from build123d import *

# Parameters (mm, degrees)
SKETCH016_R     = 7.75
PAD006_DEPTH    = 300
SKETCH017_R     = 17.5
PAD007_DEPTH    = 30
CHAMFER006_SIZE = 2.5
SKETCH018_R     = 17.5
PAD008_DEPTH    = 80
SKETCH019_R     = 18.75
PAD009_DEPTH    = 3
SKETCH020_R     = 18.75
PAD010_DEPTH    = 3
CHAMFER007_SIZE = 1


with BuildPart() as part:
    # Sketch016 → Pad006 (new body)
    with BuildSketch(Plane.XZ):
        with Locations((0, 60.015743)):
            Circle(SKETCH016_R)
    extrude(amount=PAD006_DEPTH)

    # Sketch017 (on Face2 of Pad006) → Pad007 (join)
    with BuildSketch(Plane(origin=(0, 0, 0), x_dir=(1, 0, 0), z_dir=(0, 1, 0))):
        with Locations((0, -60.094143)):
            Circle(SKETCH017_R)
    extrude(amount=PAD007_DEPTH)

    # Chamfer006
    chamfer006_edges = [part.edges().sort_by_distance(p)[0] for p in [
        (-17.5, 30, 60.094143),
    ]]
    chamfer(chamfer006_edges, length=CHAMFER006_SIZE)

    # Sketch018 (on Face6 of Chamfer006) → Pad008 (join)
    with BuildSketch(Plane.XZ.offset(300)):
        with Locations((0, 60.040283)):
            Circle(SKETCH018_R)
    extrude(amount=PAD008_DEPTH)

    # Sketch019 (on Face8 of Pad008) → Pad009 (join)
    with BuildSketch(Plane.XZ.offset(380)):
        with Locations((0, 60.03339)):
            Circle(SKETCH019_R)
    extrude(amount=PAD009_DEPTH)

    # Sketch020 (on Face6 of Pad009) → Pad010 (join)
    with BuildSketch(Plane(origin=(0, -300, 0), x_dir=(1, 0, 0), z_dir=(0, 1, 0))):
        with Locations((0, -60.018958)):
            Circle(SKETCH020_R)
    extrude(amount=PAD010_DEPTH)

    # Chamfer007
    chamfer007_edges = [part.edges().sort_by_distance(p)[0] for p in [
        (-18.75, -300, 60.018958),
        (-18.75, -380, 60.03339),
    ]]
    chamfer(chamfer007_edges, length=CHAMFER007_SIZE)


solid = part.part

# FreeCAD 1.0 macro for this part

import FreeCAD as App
import Part
import Sketcher


def edges_at(feature, points):
    """Names of the edges that pass closest to the given points."""
    edges = feature.Shape.Edges
    near = lambda p: min(range(len(edges)), key=lambda i: edges[i].distToShape(Part.Vertex(*p))[0])
    return sorted({f"Edge{near(p) + 1}" for p in points})

doc = App.newDocument("Part")
body = doc.addObject("PartDesign::Body", "Body")

# Sketch on XZ plane
sketch1 = body.newObject("Sketcher::SketchObject", "Sketch")
sketch1.AttachmentSupport = (doc.getObject("XZ_Plane"), [""])
sketch1.MapMode = "FlatFace"
sketch1.addGeometry(Part.Circle(App.Vector(0, 60, 0), App.Vector(0, 0, 1), 8), False)
sketch1.addConstraint(Sketcher.Constraint("PointOnObject", 0, 3, -2))
sketch1.addConstraint(Sketcher.Constraint("Diameter", 0, 15.5))
sketch1.addConstraint(Sketcher.Constraint("DistanceY", -1, 1, 0, 3, 60.015743))
pad1 = body.newObject("PartDesign::Pad", "Pad")
pad1.Profile = sketch1
pad1.Length = 300

# Sketch on XZ plane
sketch2 = body.newObject("Sketcher::SketchObject", "Sketch001")
sketch2.AttachmentSupport = (doc.getObject("XZ_Plane"), [""])
sketch2.MapMode = "FlatFace"
sketch2.addGeometry(Part.Circle(App.Vector(0, 60, 0), App.Vector(0, 0, 1), 18), False)
sketch2.addConstraint(Sketcher.Constraint("PointOnObject", 0, 3, -2))
sketch2.addConstraint(Sketcher.Constraint("Diameter", 0, 35.0))
sketch2.addConstraint(Sketcher.Constraint("DistanceY", -1, 1, 0, 3, 60.094143))
pad2 = body.newObject("PartDesign::Pad", "Pad001")
pad2.Profile = sketch2
pad2.Length = 30
pad2.Reversed = True
doc.recompute()

chamfer = body.newObject("PartDesign::Chamfer", "Chamfer")
chamfer.Base = (pad2, edges_at(pad2, [(-17.5, 30, 60.094)]))
chamfer.Size = 2.5

# Sketch on XZ plane
sketch3 = body.newObject("Sketcher::SketchObject", "Sketch002")
sketch3.AttachmentSupport = (doc.getObject("XZ_Plane"), [""])
sketch3.MapMode = "FlatFace"
sketch3.AttachmentOffset = App.Placement(App.Vector(0, 0, 300), App.Rotation())
sketch3.addGeometry(Part.Circle(App.Vector(0, 60, 0), App.Vector(0, 0, 1), 18), False)
sketch3.addConstraint(Sketcher.Constraint("PointOnObject", 0, 3, -2))
sketch3.addConstraint(Sketcher.Constraint("Diameter", 0, 35.0))
sketch3.addConstraint(Sketcher.Constraint("DistanceY", -1, 1, 0, 3, 60.040283))
pad3 = body.newObject("PartDesign::Pad", "Pad002")
pad3.Profile = sketch3
pad3.Length = 80

# Sketch on XZ plane
sketch4 = body.newObject("Sketcher::SketchObject", "Sketch003")
sketch4.AttachmentSupport = (doc.getObject("XZ_Plane"), [""])
sketch4.MapMode = "FlatFace"
sketch4.AttachmentOffset = App.Placement(App.Vector(0, 0, 380), App.Rotation())
sketch4.addGeometry(Part.Circle(App.Vector(0, 60, 0), App.Vector(0, 0, 1), 19), False)
sketch4.addConstraint(Sketcher.Constraint("PointOnObject", 0, 3, -2))
sketch4.addConstraint(Sketcher.Constraint("Diameter", 0, 37.5))
sketch4.addConstraint(Sketcher.Constraint("DistanceY", -1, 1, 0, 3, 60.03339))
pad4 = body.newObject("PartDesign::Pad", "Pad003")
pad4.Profile = sketch4
pad4.Length = 3

# Sketch on XZ plane
sketch5 = body.newObject("Sketcher::SketchObject", "Sketch004")
sketch5.AttachmentSupport = (doc.getObject("XZ_Plane"), [""])
sketch5.MapMode = "FlatFace"
sketch5.AttachmentOffset = App.Placement(App.Vector(0, 0, 300), App.Rotation())
sketch5.addGeometry(Part.Circle(App.Vector(0, 60, 0), App.Vector(0, 0, 1), 19), False)
sketch5.addConstraint(Sketcher.Constraint("PointOnObject", 0, 3, -2))
sketch5.addConstraint(Sketcher.Constraint("Diameter", 0, 37.5))
sketch5.addConstraint(Sketcher.Constraint("DistanceY", -1, 1, 0, 3, 60.018958))
pad5 = body.newObject("PartDesign::Pad", "Pad004")
pad5.Profile = sketch5
pad5.Length = 3
pad5.Reversed = True
doc.recompute()

chamfer2 = body.newObject("PartDesign::Chamfer", "Chamfer001")
chamfer2.Base = (pad5, edges_at(pad5, [(-18.75, -300, 60.019), (-18.75, -380, 60.033)]))
chamfer2.Size = 1

doc.recompute()
